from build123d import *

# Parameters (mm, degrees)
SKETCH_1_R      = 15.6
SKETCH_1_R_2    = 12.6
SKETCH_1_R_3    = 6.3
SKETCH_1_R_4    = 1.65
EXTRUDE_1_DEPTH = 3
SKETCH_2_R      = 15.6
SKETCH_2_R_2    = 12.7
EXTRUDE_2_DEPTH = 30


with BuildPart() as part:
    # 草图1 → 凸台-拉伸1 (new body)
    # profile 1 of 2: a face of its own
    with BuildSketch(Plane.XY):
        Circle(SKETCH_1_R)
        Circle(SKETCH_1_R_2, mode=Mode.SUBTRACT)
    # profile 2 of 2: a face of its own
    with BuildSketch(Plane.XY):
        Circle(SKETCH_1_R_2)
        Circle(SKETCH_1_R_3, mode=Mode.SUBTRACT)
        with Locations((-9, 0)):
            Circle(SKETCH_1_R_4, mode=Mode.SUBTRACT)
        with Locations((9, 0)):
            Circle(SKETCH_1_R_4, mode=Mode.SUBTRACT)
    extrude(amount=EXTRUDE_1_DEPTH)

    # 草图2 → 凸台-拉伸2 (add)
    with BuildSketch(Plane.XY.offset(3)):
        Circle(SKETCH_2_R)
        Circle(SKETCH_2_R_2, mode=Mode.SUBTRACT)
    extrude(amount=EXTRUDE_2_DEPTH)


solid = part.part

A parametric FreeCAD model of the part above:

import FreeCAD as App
import Part
import Sketcher

V = App.Vector
Q = App.Units.Quantity

doc = App.newDocument("Part")
body = doc.addObject("PartDesign::Body", "Body")

# Sketch on XY plane
sketch1 = body.newObject("Sketcher::SketchObject", "Sketch")
sketch1.AttachmentSupport = (doc.getObject("XY_Plane"), [""])
sketch1.MapMode = "FlatFace"
sketch1.addGeometry(Part.Circle(V(0, 0, 0), V(0, 0, 1), 15.6), False)
sketch1.addGeometry(Part.Circle(V(9, 0, 0), V(0, 0, 1), 1.65), False)
sketch1.addGeometry(Part.Circle(V(-9, 0, 0), V(0, 0, 1), 1.65), False)
sketch1.addGeometry(Part.Circle(V(0, 0, 0), V(0, 0, 1), 6.3), False)
sketch1.addConstraint(Sketcher.Constraint("Coincident", 0, 3, -1, 1))
sketch1.addConstraint(Sketcher.Constraint("Coincident", 3, 3, -1, 1))
sketch1.addConstraint(Sketcher.Constraint("Equal", 1, 2))
sketch1.addConstraint(Sketcher.Constraint("Symmetric", 1, 3, 2, 3, -1, 1))
sketch1.addConstraint(Sketcher.Constraint("PointOnObject", 1, 3, -1))
sketch1.addConstraint(Sketcher.Constraint("Diameter", 0, Q("31.2 mm")))
sketch1.addConstraint(Sketcher.Constraint("Diameter", 1, Q("3.3 mm")))
sketch1.addConstraint(Sketcher.Constraint("Diameter", 3, Q("12.6 mm")))
sketch1.addConstraint(Sketcher.Constraint("DistanceX", -1, 1, 1, 3, Q("9 mm")))
pad1 = body.newObject("PartDesign::Pad", "Pad")
pad1.Profile = sketch1
pad1.Length = 3

# Sketch on XY plane
sketch2 = body.newObject("Sketcher::SketchObject", "Sketch001")
sketch2.AttachmentSupport = (doc.getObject("XY_Plane"), [""])
sketch2.MapMode = "FlatFace"
sketch2.AttachmentOffset = App.Placement(V(0, 0, 3), App.Rotation())
sketch2.addGeometry(Part.Circle(V(0, 0, 0), V(0, 0, 1), 15.6), False)
sketch2.addGeometry(Part.Circle(V(0, 0, 0), V(0, 0, 1), 12.7), False)
sketch2.addConstraint(Sketcher.Constraint("Coincident", 0, 3, -1, 1))
sketch2.addConstraint(Sketcher.Constraint("Coincident", 1, 3, -1, 1))
sketch2.addConstraint(Sketcher.Constraint("Diameter", 0, Q("31.2 mm")))
sketch2.addConstraint(Sketcher.Constraint("Diameter", 1, Q("25.4 mm")))
pad2 = body.newObject("PartDesign::Pad", "Pad001")
pad2.Profile = sketch2
pad2.Length = 30

doc.recompute()
